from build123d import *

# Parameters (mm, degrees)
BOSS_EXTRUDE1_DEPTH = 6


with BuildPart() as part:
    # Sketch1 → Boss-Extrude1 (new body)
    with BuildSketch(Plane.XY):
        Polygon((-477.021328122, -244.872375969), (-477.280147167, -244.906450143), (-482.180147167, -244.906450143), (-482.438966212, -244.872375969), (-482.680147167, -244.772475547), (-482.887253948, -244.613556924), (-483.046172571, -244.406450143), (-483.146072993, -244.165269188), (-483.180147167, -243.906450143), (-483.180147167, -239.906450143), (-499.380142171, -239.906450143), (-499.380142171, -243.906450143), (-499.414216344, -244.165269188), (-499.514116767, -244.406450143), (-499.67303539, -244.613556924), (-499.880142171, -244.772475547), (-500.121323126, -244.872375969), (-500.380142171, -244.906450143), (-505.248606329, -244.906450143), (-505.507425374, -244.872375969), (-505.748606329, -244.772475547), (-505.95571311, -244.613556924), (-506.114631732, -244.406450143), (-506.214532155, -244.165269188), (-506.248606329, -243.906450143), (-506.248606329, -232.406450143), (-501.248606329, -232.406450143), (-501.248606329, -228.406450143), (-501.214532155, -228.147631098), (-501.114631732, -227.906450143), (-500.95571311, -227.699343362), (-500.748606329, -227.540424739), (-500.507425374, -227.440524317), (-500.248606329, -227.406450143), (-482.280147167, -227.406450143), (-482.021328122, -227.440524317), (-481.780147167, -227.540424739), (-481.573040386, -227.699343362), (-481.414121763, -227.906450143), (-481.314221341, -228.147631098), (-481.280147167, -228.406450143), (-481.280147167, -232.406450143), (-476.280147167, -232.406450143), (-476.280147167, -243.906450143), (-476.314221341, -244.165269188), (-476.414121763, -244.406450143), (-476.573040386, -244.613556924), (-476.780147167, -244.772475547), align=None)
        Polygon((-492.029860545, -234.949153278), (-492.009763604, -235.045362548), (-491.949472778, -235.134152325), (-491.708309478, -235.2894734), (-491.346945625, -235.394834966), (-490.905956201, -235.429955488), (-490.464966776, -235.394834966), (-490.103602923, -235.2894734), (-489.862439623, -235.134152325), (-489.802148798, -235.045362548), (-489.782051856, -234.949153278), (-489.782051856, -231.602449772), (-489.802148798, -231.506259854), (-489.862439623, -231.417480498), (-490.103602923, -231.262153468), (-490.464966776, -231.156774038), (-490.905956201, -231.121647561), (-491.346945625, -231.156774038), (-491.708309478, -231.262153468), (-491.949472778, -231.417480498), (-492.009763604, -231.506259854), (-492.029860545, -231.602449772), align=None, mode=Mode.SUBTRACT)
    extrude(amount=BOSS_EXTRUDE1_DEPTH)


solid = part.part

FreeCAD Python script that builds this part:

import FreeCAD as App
import Part
import Sketcher
Q = App.Units.Quantity

doc = App.newDocument("Part")
body = doc.addObject("PartDesign::Body", "Body")

# Sketch on XY plane
sketch1 = doc.addObject("Sketcher::SketchObject", "Sketch")
body.addObject(sketch1)
sketch1.AttachmentSupport = (doc.XY_Plane, [""])
sketch1.MapMode = "FlatFace"
sketch1.addGeometry(Part.LineSegment(App.Vector(-477.28, -244.91, 0), App.Vector(-477.02, -244.87, 0)), False)
sketch1.addGeometry(Part.LineSegment(App.Vector(-477.02, -244.87, 0), App.Vector(-476.78, -244.77, 0)), False)
sketch1.addGeometry(Part.LineSegment(App.Vector(-476.78, -244.77, 0), App.Vector(-476.57, -244.61, 0)), False)
sketch1.addGeometry(Part.LineSegment(App.Vector(-476.57, -244.61, 0), App.Vector(-476.41, -244.41, 0)), False)
sketch1.addGeometry(Part.LineSegment(App.Vector(-476.41, -244.41, 0), App.Vector(-476.31, -244.17, 0)), False)
sketch1.addGeometry(Part.LineSegment(App.Vector(-476.31, -244.17, 0), App.Vector(-476.28, -243.91, 0)), False)
sketch1.addGeometry(Part.LineSegment(App.Vector(-476.28, -243.91, 0), App.Vector(-476.28, -232.41, 0)), False)
sketch1.addGeometry(Part.LineSegment(App.Vector(-476.28, -232.41, 0), App.Vector(-481.28, -232.41, 0)), False)
sketch1.addGeometry(Part.LineSegment(App.Vector(-481.28, -232.41, 0), App.Vector(-481.28, -228.41, 0)), False)
sketch1.addGeometry(Part.LineSegment(App.Vector(-481.28, -228.41, 0), App.Vector(-481.31, -228.15, 0)), False)
sketch1.addGeometry(Part.LineSegment(App.Vector(-481.31, -228.15, 0), App.Vector(-481.41, -227.91, 0)), False)
sketch1.addGeometry(Part.LineSegment(App.Vector(-481.41, -227.91, 0), App.Vector(-481.57, -227.7, 0)), False)
sketch1.addGeometry(Part.LineSegment(App.Vector(-481.57, -227.7, 0), App.Vector(-481.78, -227.54, 0)), False)
sketch1.addGeometry(Part.LineSegment(App.Vector(-481.78, -227.54, 0), App.Vector(-482.02, -227.44, 0)), False)
sketch1.addGeometry(Part.LineSegment(App.Vector(-482.02, -227.44, 0), App.Vector(-482.28, -227.41, 0)), False)
sketch1.addGeometry(Part.LineSegment(App.Vector(-482.28, -227.41, 0), App.Vector(-500.25, -227.41, 0)), False)
sketch1.addGeometry(Part.LineSegment(App.Vector(-500.25, -227.41, 0), App.Vector(-500.51, -227.44, 0)), False)
sketch1.addGeometry(Part.LineSegment(App.Vector(-500.51, -227.44, 0), App.Vector(-500.75, -227.54, 0)), False)
sketch1.addGeometry(Part.LineSegment(App.Vector(-500.75, -227.54, 0), App.Vector(-500.96, -227.7, 0)), False)
sketch1.addGeometry(Part.LineSegment(App.Vector(-500.96, -227.7, 0), App.Vector(-501.11, -227.91, 0)), False)
sketch1.addGeometry(Part.LineSegment(App.Vector(-501.11, -227.91, 0), App.Vector(-501.21, -228.15, 0)), False)
sketch1.addGeometry(Part.LineSegment(App.Vector(-501.21, -228.15, 0), App.Vector(-501.25, -228.41, 0)), False)
sketch1.addGeometry(Part.LineSegment(App.Vector(-501.25, -228.41, 0), App.Vector(-501.25, -232.41, 0)), False)
sketch1.addGeometry(Part.LineSegment(App.Vector(-501.25, -232.41, 0), App.Vector(-506.25, -232.41, 0)), False)
sketch1.addGeometry(Part.LineSegment(App.Vector(-506.25, -232.41, 0), App.Vector(-506.25, -243.91, 0)), False)
sketch1.addGeometry(Part.LineSegment(App.Vector(-506.25, -243.91, 0), App.Vector(-506.21, -244.17, 0)), False)
sketch1.addGeometry(Part.LineSegment(App.Vector(-506.21, -244.17, 0), App.Vector(-506.11, -244.41, 0)), False)
sketch1.addGeometry(Part.LineSegment(App.Vector(-506.11, -244.41, 0), App.Vector(-505.96, -244.61, 0)), False)
sketch1.addGeometry(Part.LineSegment(App.Vector(-505.96, -244.61, 0), App.Vector(-505.75, -244.77, 0)), False)
sketch1.addGeometry(Part.LineSegment(App.Vector(-505.75, -244.77, 0), App.Vector(-505.51, -244.87, 0)), False)
sketch1.addGeometry(Part.LineSegment(App.Vector(-505.51, -244.87, 0), App.Vector(-505.25, -244.91, 0)), False)
sketch1.addGeometry(Part.LineSegment(App.Vector(-505.25, -244.91, 0), App.Vector(-500.38, -244.91, 0)), False)
sketch1.addGeometry(Part.LineSegment(App.Vector(-500.38, -244.91, 0), App.Vector(-500.12, -244.87, 0)), False)
sketch1.addGeometry(Part.LineSegment(App.Vector(-500.12, -244.87, 0), App.Vector(-499.88, -244.77, 0)), False)
sketch1.addGeometry(Part.LineSegment(App.Vector(-499.88, -244.77, 0), App.Vector(-499.67, -244.61, 0)), False)
sketch1.addGeometry(Part.LineSegment(App.Vector(-499.67, -244.61, 0), App.Vector(-499.51, -244.41, 0)), False)
sketch1.addGeometry(Part.LineSegment(App.Vector(-499.51, -244.41, 0), App.Vector(-499.41, -244.17, 0)), False)
sketch1.addGeometry(Part.LineSegment(App.Vector(-499.41, -244.17, 0), App.Vector(-499.38, -243.91, 0)), False)
sketch1.addGeometry(Part.LineSegment(App.Vector(-499.38, -243.91, 0), App.Vector(-499.38, -239.91, 0)), False)
sketch1.addGeometry(Part.LineSegment(App.Vector(-499.38, -239.91, 0), App.Vector(-483.18, -239.91, 0)), False)
sketch1.addGeometry(Part.LineSegment(App.Vector(-483.18, -239.91, 0), App.Vector(-483.18, -243.91, 0)), False)
sketch1.addGeometry(Part.LineSegment(App.Vector(-483.18, -243.91, 0), App.Vector(-483.15, -244.17, 0)), False)
sketch1.addGeometry(Part.LineSegment(App.Vector(-483.15, -244.17, 0), App.Vector(-483.05, -244.41, 0)), False)
sketch1.addGeometry(Part.LineSegment(App.Vector(-483.05, -244.41, 0), App.Vector(-482.89, -244.61, 0)), False)
sketch1.addGeometry(Part.LineSegment(App.Vector(-482.89, -244.61, 0), App.Vector(-482.68, -244.77, 0)), False)
sketch1.addGeometry(Part.LineSegment(App.Vector(-482.68, -244.77, 0), App.Vector(-482.44, -244.87, 0)), False)
sketch1.addGeometry(Part.LineSegment(App.Vector(-482.44, -244.87, 0), App.Vector(-482.18, -244.91, 0)), False)
sketch1.addGeometry(Part.LineSegment(App.Vector(-482.18, -244.91, 0), App.Vector(-477.28, -244.91, 0)), False)
sketch1.addGeometry(Part.LineSegment(App.Vector(-492.03, -234.95, 0), App.Vector(-492.03, -231.6, 0)), False)
sketch1.addGeometry(Part.LineSegment(App.Vector(-492.03, -231.6, 0), App.Vector(-492.01, -231.51, 0)), False)
sketch1.addGeometry(Part.LineSegment(App.Vector(-492.01, -231.51, 0), App.Vector(-491.95, -231.42, 0)), False)
sketch1.addGeometry(Part.LineSegment(App.Vector(-491.95, -231.42, 0), App.Vector(-491.71, -231.26, 0)), False)
sketch1.addGeometry(Part.LineSegment(App.Vector(-491.71, -231.26, 0), App.Vector(-491.35, -231.16, 0)), False)
sketch1.addGeometry(Part.LineSegment(App.Vector(-491.35, -231.16, 0), App.Vector(-490.91, -231.12, 0)), False)
sketch1.addGeometry(Part.LineSegment(App.Vector(-490.91, -231.12, 0), App.Vector(-490.46, -231.16, 0)), False)
sketch1.addGeometry(Part.LineSegment(App.Vector(-490.46, -231.16, 0), App.Vector(-490.1, -231.26, 0)), False)
sketch1.addGeometry(Part.LineSegment(App.Vector(-490.1, -231.26, 0), App.Vector(-489.86, -231.42, 0)), False)
sketch1.addGeometry(Part.LineSegment(App.Vector(-489.86, -231.42, 0), App.Vector(-489.8, -231.51, 0)), False)
sketch1.addGeometry(Part.LineSegment(App.Vector(-489.8, -231.51, 0), App.Vector(-489.78, -231.6, 0)), False)
sketch1.addGeometry(Part.LineSegment(App.Vector(-489.78, -231.6, 0), App.Vector(-489.78, -234.95, 0)), False)
sketch1.addGeometry(Part.LineSegment(App.Vector(-489.78, -234.95, 0), App.Vector(-489.8, -235.05, 0)), False)
sketch1.addGeometry(Part.LineSegment(App.Vector(-489.8, -235.05, 0), App.Vector(-489.86, -235.13, 0)), False)
sketch1.addGeometry(Part.LineSegment(App.Vector(-489.86, -235.13, 0), App.Vector(-490.1, -235.29, 0)), False)
sketch1.addGeometry(Part.LineSegment(App.Vector(-490.1, -235.29, 0), App.Vector(-490.46, -235.39, 0)), False)
sketch1.addGeometry(Part.LineSegment(App.Vector(-490.46, -235.39, 0), App.Vector(-490.91, -235.43, 0)), False)
sketch1.addGeometry(Part.LineSegment(App.Vector(-490.91, -235.43, 0), App.Vector(-491.35, -235.39, 0)), False)
sketch1.addGeometry(Part.LineSegment(App.Vector(-491.35, -235.39, 0), App.Vector(-491.71, -235.29, 0)), False)
sketch1.addGeometry(Part.LineSegment(App.Vector(-491.71, -235.29, 0), App.Vector(-491.95, -235.13, 0)), False)
sketch1.addGeometry(Part.LineSegment(App.Vector(-491.95, -235.13, 0), App.Vector(-492.01, -235.05, 0)), False)
sketch1.addGeometry(Part.LineSegment(App.Vector(-492.01, -235.05, 0), App.Vector(-492.03, -234.95, 0)), False)
sketch1.addConstraint(Sketcher.Constraint("Coincident", 0, 2, 1, 1))
sketch1.addConstraint(Sketcher.Constraint("Coincident", 1, 2, 2, 1))
sketch1.addConstraint(Sketcher.Constraint("Coincident", 2, 2, 3, 1))
sketch1.addConstraint(Sketcher.Constraint("Coincident", 3, 2, 4, 1))
sketch1.addConstraint(Sketcher.Constraint("Coincident", 4, 2, 5, 1))
sketch1.addConstraint(Sketcher.Constraint("Coincident", 5, 2, 6, 1))
sketch1.addConstraint(Sketcher.Constraint("Coincident", 6, 2, 7, 1))
sketch1.addConstraint(Sketcher.Constraint("Coincident", 7, 2, 8, 1))
sketch1.addConstraint(Sketcher.Constraint("Coincident", 8, 2, 9, 1))
sketch1.addConstraint(Sketcher.Constraint("Coincident", 9, 2, 10, 1))
sketch1.addConstraint(Sketcher.Constraint("Coincident", 10, 2, 11, 1))
sketch1.addConstraint(Sketcher.Constraint("Coincident", 11, 2, 12, 1))
sketch1.addConstraint(Sketcher.Constraint("Coincident", 12, 2, 13, 1))
sketch1.addConstraint(Sketcher.Constraint("Coincident", 13, 2, 14, 1))
sketch1.addConstraint(Sketcher.Constraint("Coincident", 14, 2, 15, 1))
sketch1.addConstraint(Sketcher.Constraint("Coincident", 15, 2, 16, 1))
sketch1.addConstraint(Sketcher.Constraint("Coincident", 16, 2, 17, 1))
sketch1.addConstraint(Sketcher.Constraint("Coincident", 17, 2, 18, 1))
sketch1.addConstraint(Sketcher.Constraint("Coincident", 18, 2, 19, 1))
sketch1.addConstraint(Sketcher.Constraint("Coincident", 19, 2, 20, 1))
sketch1.addConstraint(Sketcher.Constraint("Coincident", 20, 2, 21, 1))
sketch1.addConstraint(Sketcher.Constraint("Coincident", 21, 2, 22, 1))
sketch1.addConstraint(Sketcher.Constraint("Coincident", 22, 2, 23, 1))
sketch1.addConstraint(Sketcher.Constraint("Coincident", 23, 2, 24, 1))
sketch1.addConstraint(Sketcher.Constraint("Coincident", 24, 2, 25, 1))
sketch1.addConstraint(Sketcher.Constraint("Coincident", 25, 2, 26, 1))
sketch1.addConstraint(Sketcher.Constraint("Coincident", 26, 2, 27, 1))
sketch1.addConstraint(Sketcher.Constraint("Coincident", 27, 2, 28, 1))
sketch1.addConstraint(Sketcher.Constraint("Coincident", 28, 2, 29, 1))
sketch1.addConstraint(Sketcher.Constraint("Coincident", 29, 2, 30, 1))
sketch1.addConstraint(Sketcher.Constraint("Coincident", 30, 2, 31, 1))
sketch1.addConstraint(Sketcher.Constraint("Coincident", 31, 2, 32, 1))
sketch1.addConstraint(Sketcher.Constraint("Coincident", 32, 2, 33, 1))
sketch1.addConstraint(Sketcher.Constraint("Coincident", 33, 2, 34, 1))
sketch1.addConstraint(Sketcher.Constraint("Coincident", 34, 2, 35, 1))
sketch1.addConstraint(Sketcher.Constraint("Coincident", 35, 2, 36, 1))
sketch1.addConstraint(Sketcher.Constraint("Coincident", 36, 2, 37, 1))
sketch1.addConstraint(Sketcher.Constraint("Coincident", 37, 2, 38, 1))
sketch1.addConstraint(Sketcher.Constraint("Coincident", 38, 2, 39, 1))
sketch1.addConstraint(Sketcher.Constraint("Coincident", 39, 2, 40, 1))
sketch1.addConstraint(Sketcher.Constraint("Coincident", 40, 2, 41, 1))
sketch1.addConstraint(Sketcher.Constraint("Coincident", 41, 2, 42, 1))
sketch1.addConstraint(Sketcher.Constraint("Coincident", 42, 2, 43, 1))
sketch1.addConstraint(Sketcher.Constraint("Coincident", 43, 2, 44, 1))
sketch1.addConstraint(Sketcher.Constraint("Coincident", 44, 2, 45, 1))
sketch1.addConstraint(Sketcher.Constraint("Coincident", 45, 2, 46, 1))
sketch1.addConstraint(Sketcher.Constraint("Coincident", 46, 2, 47, 1))
sketch1.addConstraint(Sketcher.Constraint("Coincident", 47, 2, 0, 1))
sketch1.addConstraint(Sketcher.Constraint("Coincident", 48, 2, 49, 1))
sketch1.addConstraint(Sketcher.Constraint("Coincident", 49, 2, 50, 1))
sketch1.addConstraint(Sketcher.Constraint("Coincident", 50, 2, 51, 1))
sketch1.addConstraint(Sketcher.Constraint("Coincident", 51, 2, 52, 1))
sketch1.addConstraint(Sketcher.Constraint("Coincident", 52, 2, 53, 1))
sketch1.addConstraint(Sketcher.Constraint("Coincident", 53, 2, 54, 1))
sketch1.addConstraint(Sketcher.Constraint("Coincident", 54, 2, 55, 1))
sketch1.addConstraint(Sketcher.Constraint("Coincident", 55, 2, 56, 1))
sketch1.addConstraint(Sketcher.Constraint("Coincident", 56, 2, 57, 1))
sketch1.addConstraint(Sketcher.Constraint("Coincident", 57, 2, 58, 1))
sketch1.addConstraint(Sketcher.Constraint("Coincident", 58, 2, 59, 1))
sketch1.addConstraint(Sketcher.Constraint("Coincident", 59, 2, 60, 1))
sketch1.addConstraint(Sketcher.Constraint("Coincident", 60, 2, 61, 1))
sketch1.addConstraint(Sketcher.Constraint("Coincident", 61, 2, 62, 1))
sketch1.addConstraint(Sketcher.Constraint("Coincident", 62, 2, 63, 1))
sketch1.addConstraint(Sketcher.Constraint("Coincident", 63, 2, 64, 1))
sketch1.addConstraint(Sketcher.Constraint("Coincident", 64, 2, 65, 1))
sketch1.addConstraint(Sketcher.Constraint("Coincident", 65, 2, 66, 1))
sketch1.addConstraint(Sketcher.Constraint("Coincident", 66, 2, 67, 1))
sketch1.addConstraint(Sketcher.Constraint("Coincident", 67, 2, 68, 1))
sketch1.addConstraint(Sketcher.Constraint("Coincident", 68, 2, 69, 1))
sketch1.addConstraint(Sketcher.Constraint("Coincident", 69, 2, 48, 1))
sketch1.addConstraint(Sketcher.Constraint("Vertical", 6))
sketch1.addConstraint(Sketcher.Constraint("Horizontal", 7))
sketch1.addConstraint(Sketcher.Constraint("Vertical", 8))
sketch1.addConstraint(Sketcher.Constraint("Horizontal", 15))
sketch1.addConstraint(Sketcher.Constraint("Vertical", 22))
sketch1.addConstraint(Sketcher.Constraint("Horizontal", 23))
sketch1.addConstraint(Sketcher.Constraint("Vertical", 24))
sketch1.addConstraint(Sketcher.Constraint("Horizontal", 31))
sketch1.addConstraint(Sketcher.Constraint("Vertical", 38))
sketch1.addConstraint(Sketcher.Constraint("Horizontal", 39))
sketch1.addConstraint(Sketcher.Constraint("Vertical", 40))
sketch1.addConstraint(Sketcher.Constraint("Horizontal", 47))
sketch1.addConstraint(Sketcher.Constraint("Vertical", 48))
sketch1.addConstraint(Sketcher.Constraint("Vertical", 59))
sketch1.addConstraint(Sketcher.Constraint("Perpendicular", 0, 9))
sketch1.addConstraint(Sketcher.Constraint("Perpendicular", 1, 10))
sketch1.addConstraint(Sketcher.Constraint("Perpendicular", 2, 11))
sketch1.addConstraint(Sketcher.Constraint("Perpendicular", 3, 12))
sketch1.addConstraint(Sketcher.Constraint("Perpendicular", 4, 13))
sketch1.addConstraint(Sketcher.Constraint("Perpendicular", 5, 14))
sketch1.addConstraint(Sketcher.Constraint("Perpendicular", 9, 16))
sketch1.addConstraint(Sketcher.Constraint("Perpendicular", 10, 17))
sketch1.addConstraint(Sketcher.Constraint("Perpendicular", 11, 18))
sketch1.addConstraint(Sketcher.Constraint("Perpendicular", 12, 19))
sketch1.addConstraint(Sketcher.Constraint("Perpendicular", 13, 20))
sketch1.addConstraint(Sketcher.Constraint("Perpendicular", 14, 21))
sketch1.addConstraint(Sketcher.Constraint("Perpendicular", 16, 25))
sketch1.addConstraint(Sketcher.Constraint("Perpendicular", 17, 26))
sketch1.addConstraint(Sketcher.Constraint("Perpendicular", 18, 27))
sketch1.addConstraint(Sketcher.Constraint("Perpendicular", 19, 28))
sketch1.addConstraint(Sketcher.Constraint("Perpendicular", 20, 29))
sketch1.addConstraint(Sketcher.Constraint("Perpendicular", 21, 30))
sketch1.addConstraint(Sketcher.Constraint("Perpendicular", 25, 32))
sketch1.addConstraint(Sketcher.Constraint("Perpendicular", 26, 33))
sketch1.addConstraint(Sketcher.Constraint("Perpendicular", 27, 34))
sketch1.addConstraint(Sketcher.Constraint("Perpendicular", 28, 35))
sketch1.addConstraint(Sketcher.Constraint("Perpendicular", 29, 36))
sketch1.addConstraint(Sketcher.Constraint("Perpendicular", 30, 37))
sketch1.addConstraint(Sketcher.Constraint("Perpendicular", 32, 41))
sketch1.addConstraint(Sketcher.Constraint("Perpendicular", 33, 42))
sketch1.addConstraint(Sketcher.Constraint("Perpendicular", 34, 43))
sketch1.addConstraint(Sketcher.Constraint("Perpendicular", 35, 44))
sketch1.addConstraint(Sketcher.Constraint("Perpendicular", 36, 45))
sketch1.addConstraint(Sketcher.Constraint("Perpendicular", 37, 46))
sketch1.addConstraint(Sketcher.Constraint("Horizontal", 13, 2, 16, 2))
sketch1.addConstraint(Sketcher.Constraint("Horizontal", 12, 2, 17, 2))
sketch1.addConstraint(Sketcher.Constraint("Horizontal", 11, 2, 18, 2))
sketch1.addConstraint(Sketcher.Constraint("Horizontal", 10, 2, 19, 2))
sketch1.addConstraint(Sketcher.Constraint("Horizontal", 9, 2, 20, 2))
sketch1.addConstraint(Sketcher.Constraint("Horizontal", 8, 2, 21, 2))
sketch1.addConstraint(Sketcher.Constraint("Horizontal", 7, 2, 22, 2))
sketch1.addConstraint(Sketcher.Constraint("Horizontal", 5, 2, 24, 2))
sketch1.addConstraint(Sketcher.Constraint("Horizontal", 4, 2, 25, 2))
sketch1.addConstraint(Sketcher.Constraint("Horizontal", 3, 2, 26, 2))
sketch1.addConstraint(Sketcher.Constraint("Horizontal", 2, 2, 27, 2))
sketch1.addConstraint(Sketcher.Constraint("Horizontal", 1, 2, 28, 2))
sketch1.addConstraint(Sketcher.Constraint("Horizontal", 0, 2, 29, 2))
sketch1.addConstraint(Sketcher.Constraint("Horizontal", 29, 2, 32, 2))
sketch1.addConstraint(Sketcher.Constraint("Horizontal", 28, 2, 33, 2))
sketch1.addConstraint(Sketcher.Constraint("Horizontal", 27, 2, 34, 2))
sketch1.addConstraint(Sketcher.Constraint("Horizontal", 26, 2, 35, 2))
sketch1.addConstraint(Sketcher.Constraint("Horizontal", 25, 2, 36, 2))
sketch1.addConstraint(Sketcher.Constraint("Horizontal", 24, 2, 37, 2))
sketch1.addConstraint(Sketcher.Constraint("Horizontal", 37, 2, 40, 2))
sketch1.addConstraint(Sketcher.Constraint("Horizontal", 36, 2, 41, 2))
sketch1.addConstraint(Sketcher.Constraint("Horizontal", 35, 2, 42, 2))
sketch1.addConstraint(Sketcher.Constraint("Horizontal", 34, 2, 43, 2))
sketch1.addConstraint(Sketcher.Constraint("Horizontal", 33, 2, 44, 2))
sketch1.addConstraint(Sketcher.Constraint("Horizontal", 32, 2, 45, 2))
sketch1.addConstraint(Sketcher.Constraint("Horizontal", 31, 2, 46, 2))
sketch1.addConstraint(Sketcher.Constraint("Horizontal", 52, 2, 54, 2))
sketch1.addConstraint(Sketcher.Constraint("Horizontal", 51, 2, 55, 2))
sketch1.addConstraint(Sketcher.Constraint("Horizontal", 50, 2, 56, 2))
sketch1.addConstraint(Sketcher.Constraint("Horizontal", 49, 2, 57, 2))
sketch1.addConstraint(Sketcher.Constraint("Horizontal", 48, 2, 58, 2))
sketch1.addConstraint(Sketcher.Constraint("Horizontal", 63, 2, 65, 2))
sketch1.addConstraint(Sketcher.Constraint("Horizontal", 62, 2, 66, 2))
sketch1.addConstraint(Sketcher.Constraint("Horizontal", 61, 2, 67, 2))
sketch1.addConstraint(Sketcher.Constraint("Horizontal", 60, 2, 68, 2))
sketch1.addConstraint(Sketcher.Constraint("Horizontal", 59, 2, 69, 2))
sketch1.addConstraint(Sketcher.Constraint("Vertical", 57, 2, 60, 2))
sketch1.addConstraint(Sketcher.Constraint("Vertical", 56, 2, 61, 2))
sketch1.addConstraint(Sketcher.Constraint("Vertical", 55, 2, 62, 2))
sketch1.addConstraint(Sketcher.Constraint("Vertical", 54, 2, 63, 2))
sketch1.addConstraint(Sketcher.Constraint("Vertical", 53, 2, 64, 2))
sketch1.addConstraint(Sketcher.Constraint("Vertical", 52, 2, 65, 2))
sketch1.addConstraint(Sketcher.Constraint("Vertical", 51, 2, 66, 2))
sketch1.addConstraint(Sketcher.Constraint("Vertical", 50, 2, 67, 2))
sketch1.addConstraint(Sketcher.Constraint("Vertical", 49, 2, 68, 2))
sketch1.addConstraint(Sketcher.Constraint("Equal", 7, 23))
sketch1.addConstraint(Sketcher.Constraint("Equal", 22, 38))
sketch1.addConstraint(Sketcher.Constraint("Equal", 0, 1))
sketch1.addConstraint(Sketcher.Constraint("Equal", 1, 2))
sketch1.addConstraint(Sketcher.Constraint("Equal", 2, 3))
sketch1.addConstraint(Sketcher.Constraint("Equal", 3, 4))
sketch1.addConstraint(Sketcher.Constraint("Equal", 4, 5))
sketch1.addConstraint(Sketcher.Constraint("Equal", 5, 9))
sketch1.addConstraint(Sketcher.Constraint("Equal", 9, 10))
sketch1.addConstraint(Sketcher.Constraint("Equal", 10, 11))
sketch1.addConstraint(Sketcher.Constraint("Equal", 11, 12))
sketch1.addConstraint(Sketcher.Constraint("Equal", 12, 13))
sketch1.addConstraint(Sketcher.Constraint("Equal", 13, 14))
sketch1.addConstraint(Sketcher.Constraint("Equal", 14, 16))
sketch1.addConstraint(Sketcher.Constraint("Equal", 16, 17))
sketch1.addConstraint(Sketcher.Constraint("Equal", 17, 18))
sketch1.addConstraint(Sketcher.Constraint("Equal", 53, 54))
sketch1.addConstraint(Sketcher.Constraint("Equal", 52, 55))
sketch1.addConstraint(Sketcher.Constraint("Equal", 51, 56))
sketch1.addConstraint(Sketcher.Constraint("Equal", 50, 57))
sketch1.addConstraint(Sketcher.Constraint("Equal", 49, 58))
sketch1.addConstraint(Sketcher.Constraint("Equal", 54, 64))
sketch1.addConstraint(Sketcher.Constraint("DistanceX", 7, 2, 7, 1, 5.0))
sketch1.addConstraint(Sketcher.Constraint("DistanceY", 8, 1, 8, 2, 4.0))
sketch1.addConstraint(Sketcher.Constraint("DistanceX", 47, 1, 47, 2, 4.9))
sketch1.addConstraint(Sketcher.Constraint("DistanceY", 6, 1, 6, 2, 11.5))
sketch1.addConstraint(Sketcher.Constraint("Angle", 0, Q("7.5 deg")))
sketch1.addConstraint(Sketcher.Constraint("Angle", 1, Q("22.5 deg")))
sketch1.addConstraint(Sketcher.Constraint("Angle", 2, Q("37.5 deg")))
sketch1.addConstraint(Sketcher.Constraint("DistanceX", 15, 2, 15, 1, 17.968459))
sketch1.addConstraint(Sketcher.Constraint("Distance", 63, 0.376411))
sketch1.addConstraint(Sketcher.Constraint("DistanceX", 31, 1, 31, 2, 4.868464))
sketch1.addConstraint(Sketcher.Constraint("DistanceX", 39, 1, 39, 2, 16.199995))
sketch1.addConstraint(Sketcher.Constraint("DistanceY", 48, 1, 48, 2, 3.346704))
sketch1.addConstraint(Sketcher.Constraint("DistanceX", 0, 2, -1, 1, 477.021328))
sketch1.addConstraint(Sketcher.Constraint("DistanceY", 3, 2, -1, 1, 244.40645))
sketch1.addConstraint(Sketcher.Constraint("DistanceX", 48, 2, -1, 1, 492.029861))
sketch1.addConstraint(Sketcher.Constraint("DistanceY", 48, 2, -1, 1, 231.60245))
sketch1.addConstraint(Sketcher.Constraint("DistanceY", 49, 2, -1, 1, 231.50626))
sketch1.addConstraint(Sketcher.Constraint("DistanceY", 50, 2, -1, 1, 231.41748))
sketch1.addConstraint(Sketcher.Constraint("DistanceX", 51, 2, -1, 1, 491.708309))
sketch1.addConstraint(Sketcher.Constraint("DistanceX", 56, 2, -1, 1, 489.86244))
sketch1.addConstraint(Sketcher.Constraint("DistanceX", 57, 2, -1, 1, 489.802149))
sketch1.addConstraint(Sketcher.Constraint("DistanceX", 58, 2, -1, 1, 489.782052))
sketch1.addConstraint(Sketcher.Constraint("Distance", 51, 0.286856))
sketch1.addConstraint(Sketcher.Constraint("Distance", 52, 0.376416))
sketch1.addConstraint(Sketcher.Constraint("Distance", 53, 0.442386))
sketch1.addConstraint(Sketcher.Constraint("Distance", 60, 0.098286))
sketch1.addConstraint(Sketcher.Constraint("Distance", 61, 0.107325))
sketch1.addConstraint(Sketcher.Constraint("Distance", 62, 0.286853))
sketch1.addConstraint(Sketcher.Constraint("DistanceX", 52, 2, -1, 1, 491.346946))
pad1 = doc.addObject("PartDesign::Pad", "Pad")
body.addObject(pad1)
pad1.Profile = sketch1
pad1.Length = 6

doc.recompute()
